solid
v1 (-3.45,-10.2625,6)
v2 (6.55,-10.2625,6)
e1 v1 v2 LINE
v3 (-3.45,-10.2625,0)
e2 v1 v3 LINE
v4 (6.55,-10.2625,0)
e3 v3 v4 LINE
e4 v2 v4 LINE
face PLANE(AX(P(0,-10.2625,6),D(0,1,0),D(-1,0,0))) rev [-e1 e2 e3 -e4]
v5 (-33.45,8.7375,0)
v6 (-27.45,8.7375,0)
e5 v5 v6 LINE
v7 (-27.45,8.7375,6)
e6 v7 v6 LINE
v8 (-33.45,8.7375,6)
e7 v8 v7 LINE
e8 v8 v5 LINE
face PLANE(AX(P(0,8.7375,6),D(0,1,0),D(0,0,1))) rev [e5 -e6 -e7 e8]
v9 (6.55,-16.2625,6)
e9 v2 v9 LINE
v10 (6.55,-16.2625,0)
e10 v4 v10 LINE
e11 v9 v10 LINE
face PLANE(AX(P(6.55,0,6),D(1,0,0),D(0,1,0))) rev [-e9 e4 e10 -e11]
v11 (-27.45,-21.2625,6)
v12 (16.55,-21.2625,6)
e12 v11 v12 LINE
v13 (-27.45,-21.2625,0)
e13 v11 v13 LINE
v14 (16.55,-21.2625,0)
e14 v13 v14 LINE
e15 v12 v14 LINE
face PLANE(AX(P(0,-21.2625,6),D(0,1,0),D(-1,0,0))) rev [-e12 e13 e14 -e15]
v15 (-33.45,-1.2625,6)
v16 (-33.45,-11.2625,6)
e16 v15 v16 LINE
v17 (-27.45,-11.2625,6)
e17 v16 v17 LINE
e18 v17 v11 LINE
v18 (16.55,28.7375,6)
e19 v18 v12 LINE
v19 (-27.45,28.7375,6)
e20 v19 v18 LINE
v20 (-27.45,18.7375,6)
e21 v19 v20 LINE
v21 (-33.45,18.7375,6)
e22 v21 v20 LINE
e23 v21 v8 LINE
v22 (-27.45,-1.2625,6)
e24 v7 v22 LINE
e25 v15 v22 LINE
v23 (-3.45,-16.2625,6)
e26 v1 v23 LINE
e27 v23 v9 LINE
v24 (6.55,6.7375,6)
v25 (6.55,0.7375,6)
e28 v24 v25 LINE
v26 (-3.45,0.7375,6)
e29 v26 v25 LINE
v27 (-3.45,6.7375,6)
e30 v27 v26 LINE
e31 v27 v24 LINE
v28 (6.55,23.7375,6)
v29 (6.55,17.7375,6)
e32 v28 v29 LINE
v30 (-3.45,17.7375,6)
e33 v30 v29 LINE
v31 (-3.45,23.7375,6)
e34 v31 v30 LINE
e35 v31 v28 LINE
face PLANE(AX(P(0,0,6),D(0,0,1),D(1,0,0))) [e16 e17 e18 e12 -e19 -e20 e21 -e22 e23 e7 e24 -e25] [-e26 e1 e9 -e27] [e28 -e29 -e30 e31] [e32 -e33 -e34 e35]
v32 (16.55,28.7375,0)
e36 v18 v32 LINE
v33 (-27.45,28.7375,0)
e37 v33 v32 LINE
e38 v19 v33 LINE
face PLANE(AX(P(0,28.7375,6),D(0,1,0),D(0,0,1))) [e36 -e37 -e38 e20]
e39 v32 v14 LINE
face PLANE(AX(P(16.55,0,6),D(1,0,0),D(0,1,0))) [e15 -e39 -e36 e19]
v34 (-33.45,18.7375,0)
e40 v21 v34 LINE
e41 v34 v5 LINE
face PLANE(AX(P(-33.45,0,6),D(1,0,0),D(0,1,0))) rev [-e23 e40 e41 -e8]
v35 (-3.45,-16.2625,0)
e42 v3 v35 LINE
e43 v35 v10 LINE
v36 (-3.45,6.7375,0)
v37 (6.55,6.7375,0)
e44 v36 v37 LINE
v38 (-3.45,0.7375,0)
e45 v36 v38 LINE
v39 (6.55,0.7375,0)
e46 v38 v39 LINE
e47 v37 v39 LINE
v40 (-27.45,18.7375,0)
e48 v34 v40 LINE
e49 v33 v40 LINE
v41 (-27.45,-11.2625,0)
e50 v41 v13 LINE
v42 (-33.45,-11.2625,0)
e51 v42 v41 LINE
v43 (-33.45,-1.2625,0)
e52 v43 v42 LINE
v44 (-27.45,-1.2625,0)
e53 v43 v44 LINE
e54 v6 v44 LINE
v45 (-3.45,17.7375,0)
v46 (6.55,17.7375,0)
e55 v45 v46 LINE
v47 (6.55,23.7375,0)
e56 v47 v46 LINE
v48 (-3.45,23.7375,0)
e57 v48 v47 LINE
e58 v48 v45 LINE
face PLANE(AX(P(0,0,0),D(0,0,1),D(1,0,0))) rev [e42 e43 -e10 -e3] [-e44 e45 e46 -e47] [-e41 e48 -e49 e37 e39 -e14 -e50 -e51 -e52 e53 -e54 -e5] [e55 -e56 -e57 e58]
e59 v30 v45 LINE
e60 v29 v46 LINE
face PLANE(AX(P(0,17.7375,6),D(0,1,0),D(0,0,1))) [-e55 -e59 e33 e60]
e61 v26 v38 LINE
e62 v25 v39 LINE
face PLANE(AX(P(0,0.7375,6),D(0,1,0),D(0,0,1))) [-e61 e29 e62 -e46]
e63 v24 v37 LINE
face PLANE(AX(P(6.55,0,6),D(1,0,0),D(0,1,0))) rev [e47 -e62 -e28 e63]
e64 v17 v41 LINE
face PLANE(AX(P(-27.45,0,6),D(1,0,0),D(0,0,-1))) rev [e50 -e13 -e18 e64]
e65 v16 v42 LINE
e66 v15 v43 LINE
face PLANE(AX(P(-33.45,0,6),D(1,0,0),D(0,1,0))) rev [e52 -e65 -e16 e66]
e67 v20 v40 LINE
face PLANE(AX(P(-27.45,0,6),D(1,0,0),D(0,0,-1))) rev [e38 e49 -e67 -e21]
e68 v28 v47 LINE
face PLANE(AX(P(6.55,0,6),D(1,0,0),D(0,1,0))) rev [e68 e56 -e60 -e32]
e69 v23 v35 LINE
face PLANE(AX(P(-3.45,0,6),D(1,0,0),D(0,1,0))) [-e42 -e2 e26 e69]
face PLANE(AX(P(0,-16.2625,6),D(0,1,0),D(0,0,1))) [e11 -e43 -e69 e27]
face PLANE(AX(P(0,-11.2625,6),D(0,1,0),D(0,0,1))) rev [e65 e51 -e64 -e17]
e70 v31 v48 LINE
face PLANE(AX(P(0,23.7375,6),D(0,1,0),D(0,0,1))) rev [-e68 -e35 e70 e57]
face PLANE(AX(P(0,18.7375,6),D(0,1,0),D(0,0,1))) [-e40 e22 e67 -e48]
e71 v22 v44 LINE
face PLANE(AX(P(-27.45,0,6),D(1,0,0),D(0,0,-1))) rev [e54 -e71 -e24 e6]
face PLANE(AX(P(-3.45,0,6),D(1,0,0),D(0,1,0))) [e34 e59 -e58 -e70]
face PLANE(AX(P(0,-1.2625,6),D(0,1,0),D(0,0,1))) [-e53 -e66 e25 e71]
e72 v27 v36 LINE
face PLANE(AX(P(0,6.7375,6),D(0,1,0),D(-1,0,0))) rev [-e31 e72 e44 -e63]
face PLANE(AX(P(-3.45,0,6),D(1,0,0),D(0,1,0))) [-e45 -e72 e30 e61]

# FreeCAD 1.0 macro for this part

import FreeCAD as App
import Part
import Sketcher
from FreeCAD import Vector

doc = App.newDocument("Part")
body = doc.addObject("PartDesign::Body", "Body")

# Sketch on XY plane
sketch1 = body.newObject("Sketcher::SketchObject", "Sketch")
sketch1.AttachmentSupport = (doc.getObject("XY_Plane"), [""])
sketch1.MapMode = "FlatFace"
sketch1.addGeometry(Part.LineSegment(Vector(-33.45, 18.7375, 0), Vector(-33.45, 8.7375, 0)), False)
sketch1.addGeometry(Part.LineSegment(Vector(-33.45, 8.7375, 0), Vector(-27.45, 8.7375, 0)), False)
sketch1.addGeometry(Part.LineSegment(Vector(-27.45, 8.7375, 0), Vector(-27.45, -1.2625, 0)), False)
sketch1.addGeometry(Part.LineSegment(Vector(-27.45, -1.2625, 0), Vector(-33.45, -1.2625, 0)), False)
sketch1.addGeometry(Part.LineSegment(Vector(-33.45, -1.2625, 0), Vector(-33.45, -11.2625, 0)), False)
sketch1.addGeometry(Part.LineSegment(Vector(-33.45, -11.2625, 0), Vector(-27.45, -11.2625, 0)), False)
sketch1.addGeometry(Part.LineSegment(Vector(-27.45, -11.2625, 0), Vector(-27.45, -21.2625, 0)), False)
sketch1.addGeometry(Part.LineSegment(Vector(-27.45, -21.2625, 0), Vector(16.55, -21.2625, 0)), False)
sketch1.addGeometry(Part.LineSegment(Vector(16.55, -21.2625, 0), Vector(16.55, 28.7375, 0)), False)
sketch1.addGeometry(Part.LineSegment(Vector(16.55, 28.7375, 0), Vector(-27.45, 28.7375, 0)), False)
sketch1.addGeometry(Part.LineSegment(Vector(-27.45, 28.7375, 0), Vector(-27.45, 18.7375, 0)), False)
sketch1.addGeometry(Part.LineSegment(Vector(-27.45, 18.7375, 0), Vector(-33.45, 18.7375, 0)), False)
sketch1.addGeometry(Part.LineSegment(Vector(6.55, -16.2625, 0), Vector(-3.45, -16.2625, 0)), False)
sketch1.addGeometry(Part.LineSegment(Vector(-3.45, -16.2625, 0), Vector(-3.45, -10.2625, 0)), False)
sketch1.addGeometry(Part.LineSegment(Vector(-3.45, -10.2625, 0), Vector(6.55, -10.2625, 0)), False)
sketch1.addGeometry(Part.LineSegment(Vector(6.55, -10.2625, 0), Vector(6.55, -16.2625, 0)), False)
sketch1.addGeometry(Part.LineSegment(Vector(6.55, 0.7375, 0), Vector(-3.45, 0.7375, 0)), False)
sketch1.addGeometry(Part.LineSegment(Vector(-3.45, 0.7375, 0), Vector(-3.45, 6.7375, 0)), False)
sketch1.addGeometry(Part.LineSegment(Vector(-3.45, 6.7375, 0), Vector(6.55, 6.7375, 0)), False)
sketch1.addGeometry(Part.LineSegment(Vector(6.55, 6.7375, 0), Vector(6.55, 0.7375, 0)), False)
sketch1.addGeometry(Part.LineSegment(Vector(6.55, 17.7375, 0), Vector(-3.45, 17.7375, 0)), False)
sketch1.addGeometry(Part.LineSegment(Vector(-3.45, 17.7375, 0), Vector(-3.45, 23.7375, 0)), False)
sketch1.addGeometry(Part.LineSegment(Vector(-3.45, 23.7375, 0), Vector(6.55, 23.7375, 0)), False)
sketch1.addGeometry(Part.LineSegment(Vector(6.55, 23.7375, 0), Vector(6.55, 17.7375, 0)), False)
sketch1.addConstraint(Sketcher.Constraint("Coincident", 0, 2, 1, 1))
sketch1.addConstraint(Sketcher.Constraint("Coincident", 1, 2, 2, 1))
sketch1.addConstraint(Sketcher.Constraint("Coincident", 2, 2, 3, 1))
sketch1.addConstraint(Sketcher.Constraint("Coincident", 3, 2, 4, 1))
sketch1.addConstraint(Sketcher.Constraint("Coincident", 4, 2, 5, 1))
sketch1.addConstraint(Sketcher.Constraint("Coincident", 5, 2, 6, 1))
sketch1.addConstraint(Sketcher.Constraint("Coincident", 6, 2, 7, 1))
sketch1.addConstraint(Sketcher.Constraint("Coincident", 7, 2, 8, 1))
sketch1.addConstraint(Sketcher.Constraint("Coincident", 8, 2, 9, 1))
sketch1.addConstraint(Sketcher.Constraint("Coincident", 9, 2, 10, 1))
sketch1.addConstraint(Sketcher.Constraint("Coincident", 10, 2, 11, 1))
sketch1.addConstraint(Sketcher.Constraint("Coincident", 11, 2, 0, 1))
sketch1.addConstraint(Sketcher.Constraint("Coincident", 12, 2, 13, 1))
sketch1.addConstraint(Sketcher.Constraint("Coincident", 13, 2, 14, 1))
sketch1.addConstraint(Sketcher.Constraint("Coincident", 14, 2, 15, 1))
sketch1.addConstraint(Sketcher.Constraint("Coincident", 15, 2, 12, 1))
sketch1.addConstraint(Sketcher.Constraint("Coincident", 16, 2, 17, 1))
sketch1.addConstraint(Sketcher.Constraint("Coincident", 17, 2, 18, 1))
sketch1.addConstraint(Sketcher.Constraint("Coincident", 18, 2, 19, 1))
sketch1.addConstraint(Sketcher.Constraint("Coincident", 19, 2, 16, 1))
sketch1.addConstraint(Sketcher.Constraint("Coincident", 20, 2, 21, 1))
sketch1.addConstraint(Sketcher.Constraint("Coincident", 21, 2, 22, 1))
sketch1.addConstraint(Sketcher.Constraint("Coincident", 22, 2, 23, 1))
sketch1.addConstraint(Sketcher.Constraint("Coincident", 23, 2, 20, 1))
sketch1.addConstraint(Sketcher.Constraint("Vertical", 0))
sketch1.addConstraint(Sketcher.Constraint("Horizontal", 1))
sketch1.addConstraint(Sketcher.Constraint("Vertical", 2))
sketch1.addConstraint(Sketcher.Constraint("Horizontal", 3))
sketch1.addConstraint(Sketcher.Constraint("Vertical", 4))
sketch1.addConstraint(Sketcher.Constraint("Horizontal", 5))
sketch1.addConstraint(Sketcher.Constraint("Vertical", 6))
sketch1.addConstraint(Sketcher.Constraint("Horizontal", 7))
sketch1.addConstraint(Sketcher.Constraint("Vertical", 8))
sketch1.addConstraint(Sketcher.Constraint("Horizontal", 9))
sketch1.addConstraint(Sketcher.Constraint("Vertical", 10))
sketch1.addConstraint(Sketcher.Constraint("Horizontal", 11))
sketch1.addConstraint(Sketcher.Constraint("Horizontal", 12))
sketch1.addConstraint(Sketcher.Constraint("Vertical", 13))
sketch1.addConstraint(Sketcher.Constraint("Horizontal", 14))
sketch1.addConstraint(Sketcher.Constraint("Vertical", 15))
sketch1.addConstraint(Sketcher.Constraint("Horizontal", 16))
sketch1.addConstraint(Sketcher.Constraint("Vertical", 17))
sketch1.addConstraint(Sketcher.Constraint("Horizontal", 18))
sketch1.addConstraint(Sketcher.Constraint("Vertical", 19))
sketch1.addConstraint(Sketcher.Constraint("Horizontal", 20))
sketch1.addConstraint(Sketcher.Constraint("Vertical", 21))
sketch1.addConstraint(Sketcher.Constraint("Horizontal", 22))
sketch1.addConstraint(Sketcher.Constraint("Vertical", 23))
sketch1.addConstraint(Sketcher.Constraint("Vertical", 0, 2, 3, 2))
sketch1.addConstraint(Sketcher.Constraint("Vertical", 2, 2, 5, 2))
sketch1.addConstraint(Sketcher.Constraint("Vertical", 6, 2, 9, 2))
sketch1.addConstraint(Sketcher.Constraint("Vertical", 13, 2, 16, 2))
sketch1.addConstraint(Sketcher.Constraint("Vertical", 15, 2, 18, 2))
sketch1.addConstraint(Sketcher.Constraint("Vertical", 17, 2, 20, 2))
sketch1.addConstraint(Sketcher.Constraint("Vertical", 19, 2, 22, 2))
sketch1.addConstraint(Sketcher.Constraint("Equal", 22, 0))
sketch1.addConstraint(Sketcher.Constraint("Equal", 0, 2))
sketch1.addConstraint(Sketcher.Constraint("Equal", 2, 4))
sketch1.addConstraint(Sketcher.Constraint("Equal", 4, 6))
sketch1.addConstraint(Sketcher.Constraint("Equal", 6, 10))
sketch1.addConstraint(Sketcher.Constraint("Equal", 11, 13))
sketch1.addConstraint(Sketcher.Constraint("Equal", 15, 17))
sketch1.addConstraint(Sketcher.Constraint("Equal", 19, 21))
sketch1.addConstraint(Sketcher.Constraint("DistanceX", 1, 1, 1, 2, 6.0))
sketch1.addConstraint(Sketcher.Constraint("DistanceX", 7, 1, 7, 2, 44.0))
sketch1.addConstraint(Sketcher.Constraint("DistanceX", 12, 2, 12, 1, 10.0))
sketch1.addConstraint(Sketcher.Constraint("DistanceX", 12, 2, 7, 2, 20.0))
sketch1.addConstraint(Sketcher.Constraint("DistanceY", 7, 2, 12, 2, 5.0))
sketch1.addConstraint(Sketcher.Constraint("DistanceY", 13, 2, 16, 2, 11.0))
sketch1.addConstraint(Sketcher.Constraint("DistanceY", 17, 2, 20, 2, 11.0))
sketch1.addConstraint(Sketcher.Constraint("DistanceX", 0, 2, -1, 1, 33.45))
sketch1.addConstraint(Sketcher.Constraint("DistanceY", -1, 1, 0, 2, 8.7375))
pad1 = body.newObject("PartDesign::Pad", "Pad")
pad1.Profile = sketch1
pad1.Length = 6

doc.recompute()
